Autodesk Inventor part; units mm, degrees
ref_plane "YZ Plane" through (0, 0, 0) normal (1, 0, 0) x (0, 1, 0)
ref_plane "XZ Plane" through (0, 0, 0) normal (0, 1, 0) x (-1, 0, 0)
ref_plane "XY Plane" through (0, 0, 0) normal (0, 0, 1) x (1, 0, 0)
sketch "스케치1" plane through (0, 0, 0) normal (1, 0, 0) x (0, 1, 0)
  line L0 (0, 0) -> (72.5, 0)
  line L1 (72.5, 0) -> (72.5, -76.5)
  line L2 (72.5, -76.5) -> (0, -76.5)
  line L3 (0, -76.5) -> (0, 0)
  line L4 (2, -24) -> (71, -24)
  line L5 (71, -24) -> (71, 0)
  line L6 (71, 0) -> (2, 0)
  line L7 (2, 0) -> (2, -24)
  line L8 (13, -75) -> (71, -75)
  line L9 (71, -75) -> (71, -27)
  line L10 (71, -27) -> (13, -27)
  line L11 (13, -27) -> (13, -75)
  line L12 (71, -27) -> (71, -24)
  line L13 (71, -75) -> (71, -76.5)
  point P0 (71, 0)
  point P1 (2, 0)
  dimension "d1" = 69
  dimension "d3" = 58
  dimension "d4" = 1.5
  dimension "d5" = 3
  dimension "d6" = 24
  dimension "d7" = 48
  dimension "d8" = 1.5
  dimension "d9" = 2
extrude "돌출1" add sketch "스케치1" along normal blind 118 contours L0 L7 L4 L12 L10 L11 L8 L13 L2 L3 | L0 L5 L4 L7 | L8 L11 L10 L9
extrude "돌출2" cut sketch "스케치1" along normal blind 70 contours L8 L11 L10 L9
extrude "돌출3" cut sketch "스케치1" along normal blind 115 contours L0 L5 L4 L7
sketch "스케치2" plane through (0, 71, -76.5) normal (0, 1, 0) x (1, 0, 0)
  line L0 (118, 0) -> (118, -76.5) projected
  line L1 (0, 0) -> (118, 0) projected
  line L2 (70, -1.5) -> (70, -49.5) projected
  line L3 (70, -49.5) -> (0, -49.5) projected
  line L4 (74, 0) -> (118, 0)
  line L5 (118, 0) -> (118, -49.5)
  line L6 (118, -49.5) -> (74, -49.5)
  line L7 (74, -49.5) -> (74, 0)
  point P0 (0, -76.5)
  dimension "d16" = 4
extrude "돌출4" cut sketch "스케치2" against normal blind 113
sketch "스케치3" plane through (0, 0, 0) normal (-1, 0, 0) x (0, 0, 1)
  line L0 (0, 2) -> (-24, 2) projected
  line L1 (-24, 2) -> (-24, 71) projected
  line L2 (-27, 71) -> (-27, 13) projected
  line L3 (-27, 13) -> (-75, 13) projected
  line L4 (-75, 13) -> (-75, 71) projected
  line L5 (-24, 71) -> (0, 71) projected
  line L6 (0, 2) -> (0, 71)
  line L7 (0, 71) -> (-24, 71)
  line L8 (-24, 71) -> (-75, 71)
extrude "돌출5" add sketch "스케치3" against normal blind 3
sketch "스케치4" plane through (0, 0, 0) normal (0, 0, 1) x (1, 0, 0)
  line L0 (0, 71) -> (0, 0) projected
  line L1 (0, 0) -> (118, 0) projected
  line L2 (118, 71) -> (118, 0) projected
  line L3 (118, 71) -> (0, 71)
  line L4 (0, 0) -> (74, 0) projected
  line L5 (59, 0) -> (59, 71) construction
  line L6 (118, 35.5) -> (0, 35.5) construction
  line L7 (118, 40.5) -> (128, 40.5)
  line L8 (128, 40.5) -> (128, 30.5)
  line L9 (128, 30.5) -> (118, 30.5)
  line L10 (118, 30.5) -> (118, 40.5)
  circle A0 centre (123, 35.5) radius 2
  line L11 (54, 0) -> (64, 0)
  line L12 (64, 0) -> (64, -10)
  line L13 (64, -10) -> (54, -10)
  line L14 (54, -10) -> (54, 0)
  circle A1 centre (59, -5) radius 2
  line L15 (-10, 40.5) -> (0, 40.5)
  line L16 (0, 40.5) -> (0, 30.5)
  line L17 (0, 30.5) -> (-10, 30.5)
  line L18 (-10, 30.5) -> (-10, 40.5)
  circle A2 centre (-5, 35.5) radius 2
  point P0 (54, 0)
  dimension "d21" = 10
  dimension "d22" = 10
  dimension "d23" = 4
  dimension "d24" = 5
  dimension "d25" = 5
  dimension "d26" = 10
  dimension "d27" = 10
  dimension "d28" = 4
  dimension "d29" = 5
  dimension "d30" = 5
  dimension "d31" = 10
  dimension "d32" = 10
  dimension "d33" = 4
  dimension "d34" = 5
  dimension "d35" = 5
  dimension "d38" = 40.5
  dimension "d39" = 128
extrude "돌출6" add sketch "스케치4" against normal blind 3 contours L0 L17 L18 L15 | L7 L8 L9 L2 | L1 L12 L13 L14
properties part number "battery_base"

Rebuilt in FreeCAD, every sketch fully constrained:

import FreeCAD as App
import Part
import Sketcher
Q = App.Units.Quantity

doc = App.newDocument("Part")
body = doc.addObject("PartDesign::Body", "Body")

sketch1 = body.newObject("Sketcher::SketchObject", "Sketch")
sketch1.AttachmentSupport = (doc.getObject("YZ_Plane"), [""])
sketch1.MapMode = "FlatFace"
sketch1.addGeometry(Part.LineSegment(App.Vector(0, 0, 0), App.Vector(0, -76, 0)), False)
sketch1.addGeometry(Part.LineSegment(App.Vector(0, -76, 0), App.Vector(71, -76, 0)), False)
sketch1.addGeometry(Part.LineSegment(App.Vector(71, -76, 0), App.Vector(71, 0, 0)), False)
sketch1.addGeometry(Part.LineSegment(App.Vector(71, 0, 0), App.Vector(0, 0, 0)), False)
sketch1.addConstraint(Sketcher.Constraint("Coincident", 0, 2, 1, 1))
sketch1.addConstraint(Sketcher.Constraint("Coincident", 1, 2, 2, 1))
sketch1.addConstraint(Sketcher.Constraint("Coincident", 2, 2, 3, 1))
sketch1.addConstraint(Sketcher.Constraint("Coincident", 3, 2, 0, 1))
sketch1.addConstraint(Sketcher.Constraint("Vertical", 0))
sketch1.addConstraint(Sketcher.Constraint("Horizontal", 1))
sketch1.addConstraint(Sketcher.Constraint("Vertical", 2))
sketch1.addConstraint(Sketcher.Constraint("Horizontal", 3))
sketch1.addConstraint(Sketcher.Constraint("Coincident", 3, 2, -1, 1))
sketch1.addConstraint(Sketcher.Constraint("DistanceX", 1, 1, 1, 2, Q("71 mm")))
sketch1.addConstraint(Sketcher.Constraint("DistanceY", 0, 2, 0, 1, Q("76.5 mm")))
pad1 = body.newObject("PartDesign::Pad", "Pad")
pad1.Profile = sketch1
pad1.Length = 118

sketch2 = body.newObject("Sketcher::SketchObject", "Sketch001")
sketch2.AttachmentSupport = (doc.getObject("YZ_Plane"), [""])
sketch2.MapMode = "FlatFace"
sketch2.addGeometry(Part.LineSegment(App.Vector(13, -75, 0), App.Vector(71, -75, 0)), False)
sketch2.addGeometry(Part.LineSegment(App.Vector(71, -75, 0), App.Vector(71, -27, 0)), False)
sketch2.addGeometry(Part.LineSegment(App.Vector(71, -27, 0), App.Vector(13, -27, 0)), False)
sketch2.addGeometry(Part.LineSegment(App.Vector(13, -27, 0), App.Vector(13, -75, 0)), False)
sketch2.addConstraint(Sketcher.Constraint("Coincident", 0, 2, 1, 1))
sketch2.addConstraint(Sketcher.Constraint("Coincident", 1, 2, 2, 1))
sketch2.addConstraint(Sketcher.Constraint("Coincident", 2, 2, 3, 1))
sketch2.addConstraint(Sketcher.Constraint("Coincident", 3, 2, 0, 1))
sketch2.addConstraint(Sketcher.Constraint("Horizontal", 0))
sketch2.addConstraint(Sketcher.Constraint("Vertical", 1))
sketch2.addConstraint(Sketcher.Constraint("Horizontal", 2))
sketch2.addConstraint(Sketcher.Constraint("Vertical", 3))
sketch2.addConstraint(Sketcher.Constraint("DistanceX", 0, 1, 0, 2, Q("58 mm")))
sketch2.addConstraint(Sketcher.Constraint("DistanceY", 1, 1, 1, 2, Q("48 mm")))
sketch2.addConstraint(Sketcher.Constraint("DistanceX", -1, 1, 0, 2, Q("71 mm")))
sketch2.addConstraint(Sketcher.Constraint("DistanceY", 0, 2, -1, 1, Q("75 mm")))
pocket1 = body.newObject("PartDesign::Pocket", "Pocket")
pocket1.Profile = sketch2
pocket1.Length = 70
pocket1.Reversed = True

sketch3 = body.newObject("Sketcher::SketchObject", "Sketch002")
sketch3.AttachmentSupport = (doc.getObject("YZ_Plane"), [""])
sketch3.MapMode = "FlatFace"
sketch3.addGeometry(Part.LineSegment(App.Vector(71, 0, 0), App.Vector(2, 0, 0)), False)
sketch3.addGeometry(Part.LineSegment(App.Vector(2, 0, 0), App.Vector(2, -24, 0)), False)
sketch3.addGeometry(Part.LineSegment(App.Vector(2, -24, 0), App.Vector(71, -24, 0)), False)
sketch3.addGeometry(Part.LineSegment(App.Vector(71, -24, 0), App.Vector(71, 0, 0)), False)
sketch3.addConstraint(Sketcher.Constraint("Coincident", 0, 2, 1, 1))
sketch3.addConstraint(Sketcher.Constraint("Coincident", 1, 2, 2, 1))
sketch3.addConstraint(Sketcher.Constraint("Coincident", 2, 2, 3, 1))
sketch3.addConstraint(Sketcher.Constraint("Coincident", 3, 2, 0, 1))
sketch3.addConstraint(Sketcher.Constraint("Horizontal", 0))
sketch3.addConstraint(Sketcher.Constraint("Vertical", 1))
sketch3.addConstraint(Sketcher.Constraint("Horizontal", 2))
sketch3.addConstraint(Sketcher.Constraint("Vertical", 3))
sketch3.addConstraint(Sketcher.Constraint("PointOnObject", 0, 2, -1))
sketch3.addConstraint(Sketcher.Constraint("DistanceX", 0, 2, 0, 1, Q("69 mm")))
sketch3.addConstraint(Sketcher.Constraint("DistanceY", 1, 2, 1, 1, Q("24 mm")))
sketch3.addConstraint(Sketcher.Constraint("DistanceX", -1, 1, 0, 2, Q("2 mm")))
pocket2 = body.newObject("PartDesign::Pocket", "Pocket001")
pocket2.Profile = sketch3
pocket2.Length = 115
pocket2.Reversed = True

sketch4 = body.newObject("Sketcher::SketchObject", "Sketch003")
sketch4.AttachmentSupport = (doc.getObject("XZ_Plane"), [""])
sketch4.MapMode = "FlatFace"
sketch4.AttachmentOffset = App.Placement(App.Vector(0, 0, -71), App.Rotation())
sketch4.addGeometry(Part.LineSegment(App.Vector(118, -27, 0), App.Vector(118, -76, 0)), False)
sketch4.addGeometry(Part.LineSegment(App.Vector(118, -76, 0), App.Vector(74, -76, 0)), False)
sketch4.addGeometry(Part.LineSegment(App.Vector(74, -76, 0), App.Vector(74, -27, 0)), False)
sketch4.addGeometry(Part.LineSegment(App.Vector(74, -27, 0), App.Vector(118, -27, 0)), False)
sketch4.addConstraint(Sketcher.Constraint("Coincident", 0, 2, 1, 1))
sketch4.addConstraint(Sketcher.Constraint("Coincident", 1, 2, 2, 1))
sketch4.addConstraint(Sketcher.Constraint("Coincident", 2, 2, 3, 1))
sketch4.addConstraint(Sketcher.Constraint("Coincident", 3, 2, 0, 1))
sketch4.addConstraint(Sketcher.Constraint("Vertical", 0))
sketch4.addConstraint(Sketcher.Constraint("Horizontal", 1))
sketch4.addConstraint(Sketcher.Constraint("Vertical", 2))
sketch4.addConstraint(Sketcher.Constraint("Horizontal", 3))
sketch4.addConstraint(Sketcher.Constraint("DistanceX", 1, 2, 1, 1, Q("44 mm")))
sketch4.addConstraint(Sketcher.Constraint("DistanceY", 0, 2, 0, 1, Q("49.5 mm")))
sketch4.addConstraint(Sketcher.Constraint("DistanceX", -1, 1, 0, 2, Q("118 mm")))
sketch4.addConstraint(Sketcher.Constraint("DistanceY", 2, 2, -1, 1, Q("27 mm")))
pocket3 = body.newObject("PartDesign::Pocket", "Pocket002")
pocket3.Profile = sketch4
pocket3.Length = 113
pocket3.Reversed = True

sketch5 = body.newObject("Sketcher::SketchObject", "Sketch004")
sketch5.AttachmentSupport = (doc.getObject("YZ_Plane"), [""])
sketch5.MapMode = "FlatFace"
sketch5.addGeometry(Part.LineSegment(App.Vector(13, -27, 0), App.Vector(71, -27, 0)), False)
sketch5.addGeometry(Part.LineSegment(App.Vector(71, -27, 0), App.Vector(71, -75, 0)), False)
sketch5.addGeometry(Part.LineSegment(App.Vector(71, -75, 0), App.Vector(13, -75, 0)), False)
sketch5.addGeometry(Part.LineSegment(App.Vector(13, -75, 0), App.Vector(13, -27, 0)), False)
sketch5.addGeometry(Part.LineSegment(App.Vector(2, -24, 0), App.Vector(2, 0, 0)), False)
sketch5.addGeometry(Part.LineSegment(App.Vector(2, 0, 0), App.Vector(71, 0, 0)), False)
sketch5.addGeometry(Part.LineSegment(App.Vector(71, 0, 0), App.Vector(71, -24, 0)), False)
sketch5.addGeometry(Part.LineSegment(App.Vector(71, -24, 0), App.Vector(2, -24, 0)), False)
sketch5.addConstraint(Sketcher.Constraint("Coincident", 0, 2, 1, 1))
sketch5.addConstraint(Sketcher.Constraint("Coincident", 1, 2, 2, 1))
sketch5.addConstraint(Sketcher.Constraint("Coincident", 2, 2, 3, 1))
sketch5.addConstraint(Sketcher.Constraint("Coincident", 3, 2, 0, 1))
sketch5.addConstraint(Sketcher.Constraint("Coincident", 4, 2, 5, 1))
sketch5.addConstraint(Sketcher.Constraint("Coincident", 5, 2, 6, 1))
sketch5.addConstraint(Sketcher.Constraint("Coincident", 6, 2, 7, 1))
sketch5.addConstraint(Sketcher.Constraint("Coincident", 7, 2, 4, 1))
sketch5.addConstraint(Sketcher.Constraint("Horizontal", 0))
sketch5.addConstraint(Sketcher.Constraint("Vertical", 1))
sketch5.addConstraint(Sketcher.Constraint("Horizontal", 2))
sketch5.addConstraint(Sketcher.Constraint("Vertical", 3))
sketch5.addConstraint(Sketcher.Constraint("Vertical", 4))
sketch5.addConstraint(Sketcher.Constraint("Horizontal", 5))
sketch5.addConstraint(Sketcher.Constraint("Vertical", 6))
sketch5.addConstraint(Sketcher.Constraint("Horizontal", 7))
sketch5.addConstraint(Sketcher.Constraint("PointOnObject", 4, 2, -1))
sketch5.addConstraint(Sketcher.Constraint("Vertical", 1, 2, 5, 2))
sketch5.addConstraint(Sketcher.Constraint("DistanceX", 0, 1, 0, 2, Q("58 mm")))
sketch5.addConstraint(Sketcher.Constraint("DistanceX", 5, 1, 5, 2, Q("69 mm")))
sketch5.addConstraint(Sketcher.Constraint("DistanceY", 1, 2, 1, 1, Q("48 mm")))
sketch5.addConstraint(Sketcher.Constraint("DistanceY", 4, 1, 4, 2, Q("24 mm")))
sketch5.addConstraint(Sketcher.Constraint("DistanceX", -1, 1, 0, 2, Q("71 mm")))
sketch5.addConstraint(Sketcher.Constraint("DistanceY", 0, 2, -1, 1, Q("27 mm")))
pad2 = body.newObject("PartDesign::Pad", "Pad001")
pad2.Profile = sketch5
pad2.Length = 3

sketch6 = body.newObject("Sketcher::SketchObject", "Sketch005")
sketch6.AttachmentSupport = (doc.getObject("XY_Plane"), [""])
sketch6.MapMode = "FlatFace"
sketch6.addGeometry(Part.LineSegment(App.Vector(0, 30.5, 0), App.Vector(0, 40.5, 0)), False)
sketch6.addGeometry(Part.LineSegment(App.Vector(0, 40.5, 0), App.Vector(-10, 40.5, 0)), False)
sketch6.addGeometry(Part.LineSegment(App.Vector(-10, 40.5, 0), App.Vector(-10, 30.5, 0)), False)
sketch6.addGeometry(Part.LineSegment(App.Vector(-10, 30.5, 0), App.Vector(0, 30.5, 0)), False)
sketch6.addGeometry(Part.Circle(App.Vector(-5, 35.5, 0), App.Vector(0, 0, 1), 2), False)
sketch6.addGeometry(Part.LineSegment(App.Vector(128, 40.5, 0), App.Vector(118, 40.5, 0)), False)
sketch6.addGeometry(Part.LineSegment(App.Vector(118, 40.5, 0), App.Vector(118, 30.5, 0)), False)
sketch6.addGeometry(Part.LineSegment(App.Vector(118, 30.5, 0), App.Vector(128, 30.5, 0)), False)
sketch6.addGeometry(Part.LineSegment(App.Vector(128, 30.5, 0), App.Vector(128, 40.5, 0)), False)
sketch6.addGeometry(Part.Circle(App.Vector(123, 35.5, 0), App.Vector(0, 0, 1), 2), False)
sketch6.addGeometry(Part.LineSegment(App.Vector(64, 0, 0), App.Vector(54, 0, 0)), False)
sketch6.addGeometry(Part.LineSegment(App.Vector(54, 0, 0), App.Vector(54, -10, 0)), False)
sketch6.addGeometry(Part.LineSegment(App.Vector(54, -10, 0), App.Vector(64, -10, 0)), False)
sketch6.addGeometry(Part.LineSegment(App.Vector(64, -10, 0), App.Vector(64, 0, 0)), False)
sketch6.addGeometry(Part.Circle(App.Vector(59, -5, 0), App.Vector(0, 0, 1), 2), False)
sketch6.addConstraint(Sketcher.Constraint("Coincident", 0, 2, 1, 1))
sketch6.addConstraint(Sketcher.Constraint("Coincident", 1, 2, 2, 1))
sketch6.addConstraint(Sketcher.Constraint("Coincident", 2, 2, 3, 1))
sketch6.addConstraint(Sketcher.Constraint("Coincident", 3, 2, 0, 1))
sketch6.addConstraint(Sketcher.Constraint("Coincident", 5, 2, 6, 1))
sketch6.addConstraint(Sketcher.Constraint("Coincident", 6, 2, 7, 1))
sketch6.addConstraint(Sketcher.Constraint("Coincident", 7, 2, 8, 1))
sketch6.addConstraint(Sketcher.Constraint("Coincident", 8, 2, 5, 1))
sketch6.addConstraint(Sketcher.Constraint("Coincident", 10, 2, 11, 1))
sketch6.addConstraint(Sketcher.Constraint("Coincident", 11, 2, 12, 1))
sketch6.addConstraint(Sketcher.Constraint("Coincident", 12, 2, 13, 1))
sketch6.addConstraint(Sketcher.Constraint("Coincident", 13, 2, 10, 1))
sketch6.addConstraint(Sketcher.Constraint("Vertical", 0))
sketch6.addConstraint(Sketcher.Constraint("Horizontal", 1))
sketch6.addConstraint(Sketcher.Constraint("Vertical", 2))
sketch6.addConstraint(Sketcher.Constraint("Horizontal", 3))
sketch6.addConstraint(Sketcher.Constraint("Horizontal", 5))
sketch6.addConstraint(Sketcher.Constraint("Vertical", 6))
sketch6.addConstraint(Sketcher.Constraint("Horizontal", 7))
sketch6.addConstraint(Sketcher.Constraint("Vertical", 8))
sketch6.addConstraint(Sketcher.Constraint("Horizontal", 10))
sketch6.addConstraint(Sketcher.Constraint("Vertical", 11))
sketch6.addConstraint(Sketcher.Constraint("Horizontal", 12))
sketch6.addConstraint(Sketcher.Constraint("Vertical", 13))
sketch6.addConstraint(Sketcher.Constraint("Equal", 4, 9))
sketch6.addConstraint(Sketcher.Constraint("Equal", 9, 14))
sketch6.addConstraint(Sketcher.Constraint("PointOnObject", 0, 2, -2))
sketch6.addConstraint(Sketcher.Constraint("PointOnObject", 10, 2, -1))
sketch6.addConstraint(Sketcher.Constraint("Horizontal", 4, 3, 9, 3))
sketch6.addConstraint(Sketcher.Constraint("Horizontal", 1, 2, 5, 2))
sketch6.addConstraint(Sketcher.Constraint("Horizontal", 3, 2, 6, 2))
sketch6.addConstraint(Sketcher.Constraint("Equal", 3, 5))
sketch6.addConstraint(Sketcher.Constraint("Equal", 7, 10))
sketch6.addConstraint(Sketcher.Constraint("Equal", 12, 0))
sketch6.addConstraint(Sketcher.Constraint("Equal", 8, 11))
sketch6.addConstraint(Sketcher.Constraint("Diameter", 4, Q("4 mm")))
sketch6.addConstraint(Sketcher.Constraint("DistanceX", 1, 2, 1, 1, Q("10 mm")))
sketch6.addConstraint(Sketcher.Constraint("DistanceX", 4, 3, -1, 1, Q("5 mm")))
sketch6.addConstraint(Sketcher.Constraint("DistanceY", 14, 3, -1, 1, Q("5 mm")))
sketch6.addConstraint(Sketcher.Constraint("DistanceX", -1, 1, 7, 2, Q("128 mm")))
sketch6.addConstraint(Sketcher.Constraint("DistanceX", 4, 3, 9, 3, Q("128 mm")))
sketch6.addConstraint(Sketcher.Constraint("DistanceY", 4, 3, 0, 2, Q("5 mm")))
sketch6.addConstraint(Sketcher.Constraint("DistanceX", 10, 2, 14, 3, Q("5 mm")))
sketch6.addConstraint(Sketcher.Constraint("DistanceY", -1, 1, 0, 2, Q("40.5 mm")))
sketch6.addConstraint(Sketcher.Constraint("DistanceX", -1, 1, 14, 3, Q("59 mm")))
pad3 = body.newObject("PartDesign::Pad", "Pad002")
pad3.Profile = sketch6
pad3.Length = 3
pad3.Reversed = True

doc.recompute()
